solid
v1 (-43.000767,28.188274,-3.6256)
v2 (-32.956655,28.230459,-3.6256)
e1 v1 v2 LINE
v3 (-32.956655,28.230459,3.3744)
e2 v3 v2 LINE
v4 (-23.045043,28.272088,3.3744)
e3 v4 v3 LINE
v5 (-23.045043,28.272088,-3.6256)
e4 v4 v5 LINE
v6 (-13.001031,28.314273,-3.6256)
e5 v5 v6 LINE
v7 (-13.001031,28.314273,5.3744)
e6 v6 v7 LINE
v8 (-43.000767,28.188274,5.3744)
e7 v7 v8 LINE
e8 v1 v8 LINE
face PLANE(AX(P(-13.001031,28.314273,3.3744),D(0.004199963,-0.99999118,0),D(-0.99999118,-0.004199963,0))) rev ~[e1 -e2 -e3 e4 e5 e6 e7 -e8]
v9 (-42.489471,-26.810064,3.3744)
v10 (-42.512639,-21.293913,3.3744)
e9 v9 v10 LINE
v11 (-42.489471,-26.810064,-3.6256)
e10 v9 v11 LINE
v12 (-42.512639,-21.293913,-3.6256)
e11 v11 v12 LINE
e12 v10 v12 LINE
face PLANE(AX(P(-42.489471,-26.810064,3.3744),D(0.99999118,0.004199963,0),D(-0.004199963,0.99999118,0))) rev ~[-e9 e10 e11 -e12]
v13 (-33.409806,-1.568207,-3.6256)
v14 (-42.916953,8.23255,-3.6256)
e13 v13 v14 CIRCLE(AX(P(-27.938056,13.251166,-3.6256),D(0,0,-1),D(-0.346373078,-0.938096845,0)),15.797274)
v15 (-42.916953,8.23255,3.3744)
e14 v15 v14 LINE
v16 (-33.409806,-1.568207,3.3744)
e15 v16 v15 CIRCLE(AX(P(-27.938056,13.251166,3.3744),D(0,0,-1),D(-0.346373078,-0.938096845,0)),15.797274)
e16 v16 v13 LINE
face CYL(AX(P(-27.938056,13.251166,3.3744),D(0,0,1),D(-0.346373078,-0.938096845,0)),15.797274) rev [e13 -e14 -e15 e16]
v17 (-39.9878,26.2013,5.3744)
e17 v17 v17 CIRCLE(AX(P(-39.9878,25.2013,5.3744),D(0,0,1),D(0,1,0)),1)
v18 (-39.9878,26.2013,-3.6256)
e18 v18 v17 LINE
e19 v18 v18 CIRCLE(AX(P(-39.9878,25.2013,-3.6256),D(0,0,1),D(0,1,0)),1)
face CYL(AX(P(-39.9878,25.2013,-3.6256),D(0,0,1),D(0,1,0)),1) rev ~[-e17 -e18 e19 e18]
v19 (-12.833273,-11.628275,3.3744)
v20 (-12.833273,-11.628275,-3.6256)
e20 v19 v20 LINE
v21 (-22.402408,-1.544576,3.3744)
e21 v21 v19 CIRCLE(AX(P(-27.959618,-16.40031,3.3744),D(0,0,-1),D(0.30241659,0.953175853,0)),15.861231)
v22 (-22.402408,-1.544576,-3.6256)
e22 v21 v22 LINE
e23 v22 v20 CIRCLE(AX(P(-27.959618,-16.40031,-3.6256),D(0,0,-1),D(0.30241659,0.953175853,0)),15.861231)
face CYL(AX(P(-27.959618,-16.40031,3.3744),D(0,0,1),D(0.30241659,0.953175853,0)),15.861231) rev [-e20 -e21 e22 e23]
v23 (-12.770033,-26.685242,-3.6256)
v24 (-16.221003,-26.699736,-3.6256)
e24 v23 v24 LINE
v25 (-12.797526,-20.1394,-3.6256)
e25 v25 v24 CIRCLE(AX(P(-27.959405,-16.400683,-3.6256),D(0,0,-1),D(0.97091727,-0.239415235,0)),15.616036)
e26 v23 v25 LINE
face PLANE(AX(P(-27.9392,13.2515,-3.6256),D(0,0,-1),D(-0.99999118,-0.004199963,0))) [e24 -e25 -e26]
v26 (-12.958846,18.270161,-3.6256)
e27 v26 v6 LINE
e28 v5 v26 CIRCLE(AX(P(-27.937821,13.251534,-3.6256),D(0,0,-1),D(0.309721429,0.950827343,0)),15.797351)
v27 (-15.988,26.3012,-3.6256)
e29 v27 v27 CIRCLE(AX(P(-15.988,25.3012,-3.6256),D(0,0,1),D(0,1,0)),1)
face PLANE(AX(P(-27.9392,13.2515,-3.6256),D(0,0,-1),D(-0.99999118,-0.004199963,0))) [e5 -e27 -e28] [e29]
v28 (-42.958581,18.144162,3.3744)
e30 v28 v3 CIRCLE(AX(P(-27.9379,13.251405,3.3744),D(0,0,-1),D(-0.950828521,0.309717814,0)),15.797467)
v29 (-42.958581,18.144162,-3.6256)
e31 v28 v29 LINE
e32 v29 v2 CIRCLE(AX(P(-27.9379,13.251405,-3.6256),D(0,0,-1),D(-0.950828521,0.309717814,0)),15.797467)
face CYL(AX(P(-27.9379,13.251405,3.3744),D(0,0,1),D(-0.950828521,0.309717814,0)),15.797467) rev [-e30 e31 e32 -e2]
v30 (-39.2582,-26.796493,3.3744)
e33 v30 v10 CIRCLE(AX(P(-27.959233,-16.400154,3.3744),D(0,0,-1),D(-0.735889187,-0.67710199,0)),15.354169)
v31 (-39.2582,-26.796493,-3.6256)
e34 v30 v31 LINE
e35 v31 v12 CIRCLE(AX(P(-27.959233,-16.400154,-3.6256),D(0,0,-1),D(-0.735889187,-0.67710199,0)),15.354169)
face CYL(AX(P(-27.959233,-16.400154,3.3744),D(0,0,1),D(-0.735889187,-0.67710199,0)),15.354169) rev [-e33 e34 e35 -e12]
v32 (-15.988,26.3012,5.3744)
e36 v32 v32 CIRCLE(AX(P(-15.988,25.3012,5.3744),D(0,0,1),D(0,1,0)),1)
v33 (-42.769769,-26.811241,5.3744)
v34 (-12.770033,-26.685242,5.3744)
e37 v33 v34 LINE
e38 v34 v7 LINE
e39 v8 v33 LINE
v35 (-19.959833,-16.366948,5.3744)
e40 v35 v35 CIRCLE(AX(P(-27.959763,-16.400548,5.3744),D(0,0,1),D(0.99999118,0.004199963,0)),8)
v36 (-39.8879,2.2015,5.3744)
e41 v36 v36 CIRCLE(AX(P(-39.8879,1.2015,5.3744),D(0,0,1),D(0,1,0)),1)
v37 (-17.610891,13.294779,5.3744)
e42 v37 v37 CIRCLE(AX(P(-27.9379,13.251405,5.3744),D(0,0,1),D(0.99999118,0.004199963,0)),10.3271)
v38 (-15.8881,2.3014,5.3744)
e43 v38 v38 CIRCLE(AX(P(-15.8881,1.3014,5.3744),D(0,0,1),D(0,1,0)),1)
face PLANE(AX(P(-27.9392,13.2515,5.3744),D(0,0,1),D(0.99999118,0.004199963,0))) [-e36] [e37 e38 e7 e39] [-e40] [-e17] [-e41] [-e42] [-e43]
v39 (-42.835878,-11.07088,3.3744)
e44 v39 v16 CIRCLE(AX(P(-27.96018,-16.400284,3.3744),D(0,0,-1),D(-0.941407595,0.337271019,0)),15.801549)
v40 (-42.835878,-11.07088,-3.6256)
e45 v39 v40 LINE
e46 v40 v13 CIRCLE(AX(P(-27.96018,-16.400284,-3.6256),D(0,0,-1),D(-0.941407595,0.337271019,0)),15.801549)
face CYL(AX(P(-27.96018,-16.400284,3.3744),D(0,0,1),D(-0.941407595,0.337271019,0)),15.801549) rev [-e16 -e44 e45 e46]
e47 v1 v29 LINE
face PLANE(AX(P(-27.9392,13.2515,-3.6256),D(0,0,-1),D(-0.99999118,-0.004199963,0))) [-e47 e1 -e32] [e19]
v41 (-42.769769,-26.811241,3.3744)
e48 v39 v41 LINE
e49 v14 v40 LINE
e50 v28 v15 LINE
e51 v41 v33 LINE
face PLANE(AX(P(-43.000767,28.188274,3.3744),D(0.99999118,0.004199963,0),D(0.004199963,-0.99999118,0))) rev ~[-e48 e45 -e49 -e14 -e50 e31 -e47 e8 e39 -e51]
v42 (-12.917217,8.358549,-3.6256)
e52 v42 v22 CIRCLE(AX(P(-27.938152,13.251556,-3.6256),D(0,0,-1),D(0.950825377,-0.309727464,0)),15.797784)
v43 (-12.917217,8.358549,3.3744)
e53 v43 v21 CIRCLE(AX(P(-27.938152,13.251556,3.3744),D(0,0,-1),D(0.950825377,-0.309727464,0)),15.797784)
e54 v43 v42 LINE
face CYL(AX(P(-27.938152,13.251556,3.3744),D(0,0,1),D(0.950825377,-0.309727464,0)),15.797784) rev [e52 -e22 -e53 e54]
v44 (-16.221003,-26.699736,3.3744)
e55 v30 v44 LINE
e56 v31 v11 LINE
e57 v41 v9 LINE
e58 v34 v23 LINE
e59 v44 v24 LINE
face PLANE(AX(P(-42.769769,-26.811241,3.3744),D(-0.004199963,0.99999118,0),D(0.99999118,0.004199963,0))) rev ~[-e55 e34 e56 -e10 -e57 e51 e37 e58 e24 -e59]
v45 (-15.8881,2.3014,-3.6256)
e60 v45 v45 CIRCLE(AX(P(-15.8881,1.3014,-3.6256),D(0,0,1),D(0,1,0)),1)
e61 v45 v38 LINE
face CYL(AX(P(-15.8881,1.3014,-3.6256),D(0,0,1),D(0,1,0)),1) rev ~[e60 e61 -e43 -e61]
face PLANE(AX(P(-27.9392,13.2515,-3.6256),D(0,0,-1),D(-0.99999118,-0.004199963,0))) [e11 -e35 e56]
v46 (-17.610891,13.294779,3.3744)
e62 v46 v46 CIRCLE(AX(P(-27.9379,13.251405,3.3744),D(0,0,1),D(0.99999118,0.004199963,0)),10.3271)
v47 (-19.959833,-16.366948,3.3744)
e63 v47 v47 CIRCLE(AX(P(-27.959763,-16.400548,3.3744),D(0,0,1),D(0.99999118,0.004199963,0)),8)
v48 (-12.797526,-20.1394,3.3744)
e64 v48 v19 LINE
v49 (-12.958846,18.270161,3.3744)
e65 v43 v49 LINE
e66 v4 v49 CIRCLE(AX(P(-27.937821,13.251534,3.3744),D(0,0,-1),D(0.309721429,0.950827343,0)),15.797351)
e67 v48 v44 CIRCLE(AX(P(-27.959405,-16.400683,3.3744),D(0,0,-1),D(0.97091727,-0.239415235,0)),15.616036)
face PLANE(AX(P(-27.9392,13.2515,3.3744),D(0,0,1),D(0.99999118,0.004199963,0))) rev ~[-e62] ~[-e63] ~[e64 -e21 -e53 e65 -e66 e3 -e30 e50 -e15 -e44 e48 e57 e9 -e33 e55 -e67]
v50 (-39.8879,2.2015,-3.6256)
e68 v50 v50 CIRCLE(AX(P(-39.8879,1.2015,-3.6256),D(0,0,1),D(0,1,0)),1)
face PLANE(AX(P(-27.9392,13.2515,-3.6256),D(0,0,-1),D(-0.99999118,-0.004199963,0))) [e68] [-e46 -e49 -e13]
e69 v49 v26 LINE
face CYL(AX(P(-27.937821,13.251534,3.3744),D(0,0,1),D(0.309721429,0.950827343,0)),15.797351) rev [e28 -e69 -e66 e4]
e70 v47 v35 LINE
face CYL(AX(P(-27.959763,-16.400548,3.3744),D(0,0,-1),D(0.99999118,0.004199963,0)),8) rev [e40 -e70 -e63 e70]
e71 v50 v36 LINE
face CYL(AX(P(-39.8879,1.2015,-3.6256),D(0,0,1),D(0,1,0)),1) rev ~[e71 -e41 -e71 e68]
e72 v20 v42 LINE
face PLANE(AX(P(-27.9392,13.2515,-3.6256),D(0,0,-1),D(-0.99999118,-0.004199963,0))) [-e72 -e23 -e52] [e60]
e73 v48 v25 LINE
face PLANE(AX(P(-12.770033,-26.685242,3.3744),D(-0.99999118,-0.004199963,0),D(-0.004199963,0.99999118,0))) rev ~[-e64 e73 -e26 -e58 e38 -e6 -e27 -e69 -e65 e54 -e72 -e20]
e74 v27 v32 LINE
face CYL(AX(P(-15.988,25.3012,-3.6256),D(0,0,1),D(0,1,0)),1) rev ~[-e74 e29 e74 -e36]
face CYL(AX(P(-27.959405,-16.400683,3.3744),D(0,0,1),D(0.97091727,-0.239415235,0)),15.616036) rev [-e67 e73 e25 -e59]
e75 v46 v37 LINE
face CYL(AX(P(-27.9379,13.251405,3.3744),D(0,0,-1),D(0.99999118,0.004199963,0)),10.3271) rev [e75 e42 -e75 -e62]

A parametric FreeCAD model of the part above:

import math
import FreeCAD as App
import Part
import Sketcher
from FreeCAD import Vector
Q = App.Units.Quantity

doc = App.newDocument("Part")
params = doc.addObject("Spreadsheet::Sheet", "Params")
for row, (alias, value) in enumerate([
    ("sketch1_diameter", "16 mm"),
    ("sketch1_length", "55 mm"),
    ("sketch1_length2", "30 mm"),
    ("pad1_length", "2 mm"),
    ("pad2_length", "7 mm"),
    ("sketch3_diameter", "2 mm"),
    ("hole_diameter", "2 mm"),
    ("hole_depth", "24 mm"),
], start=1):
    params.set(f"A{row}", alias)
    params.set(f"B{row}", "=" + value)
    params.setAlias(f"B{row}", alias)

body = doc.addObject("PartDesign::Body", "Body")

# Sketch on XY plane
sketch1 = body.newObject("Sketcher::SketchObject", "Sketch")
sketch1.AttachmentSupport = (doc.getObject("XY_Plane"), [""])
sketch1.MapMode = "FlatFace"
sketch1.AttachmentOffset = App.Placement(Vector(0, 0, 3.3744), App.Rotation())
sketch1.addGeometry(Part.LineSegment(Vector(-13, -27, 0), Vector(-13, 28, 0)), False)
sketch1.addGeometry(Part.LineSegment(Vector(-13, 28, 0), Vector(-43, 28, 0)), False)
sketch1.addGeometry(Part.LineSegment(Vector(-43, 28, 0), Vector(-43, -27, 0)), False)
sketch1.addGeometry(Part.LineSegment(Vector(-43, -27, 0), Vector(-13, -27, 0)), False)
sketch1.addGeometry(Part.Circle(Vector(-28, -16, 0), Vector(0, 0, 1), 8), False)
sketch1.addGeometry(Part.Circle(Vector(-28, 13, 0), Vector(0, 0, 1), 10), False)
sketch1.addConstraint(Sketcher.Constraint("Coincident", 0, 2, 1, 1))
sketch1.addConstraint(Sketcher.Constraint("Coincident", 1, 2, 2, 1))
sketch1.addConstraint(Sketcher.Constraint("Coincident", 2, 2, 3, 1))
sketch1.addConstraint(Sketcher.Constraint("Coincident", 3, 2, 0, 1))
sketch1.addConstraint(Sketcher.Constraint("Perpendicular", 0, 1))
sketch1.addConstraint(Sketcher.Constraint("Perpendicular", 1, 2))
sketch1.addConstraint(Sketcher.Constraint("Perpendicular", 2, 3))
sketch1.addConstraint(Sketcher.Constraint("Diameter", 4, 16.0))
sketch1.addConstraint(Sketcher.Constraint("Distance", 0, 55.0))
sketch1.addConstraint(Sketcher.Constraint("Distance", 1, 30.0))
sketch1.addConstraint(Sketcher.Constraint("DistanceY", 4, 3, 5, 3, 29.652))
sketch1.addConstraint(Sketcher.Constraint("Diameter", 5, 20.6542))
sketch1.addConstraint(Sketcher.Constraint("Angle", 0, Q("90.2406 deg")))
sketch1.addConstraint(Sketcher.Constraint("DistanceX", 3, 2, -1, 1, 12.77))
sketch1.addConstraint(Sketcher.Constraint("DistanceX", 2, 2, 4, 3, 14.81))
sketch1.addConstraint(Sketcher.Constraint("DistanceX", 5, 3, -1, 1, 27.938))
sketch1.addConstraint(Sketcher.Constraint("DistanceY", 4, 3, -1, 1, 16.4005))
sketch1.addConstraint(Sketcher.Constraint("DistanceY", -1, 1, 0, 2, 28.3143))
sketch1.setExpression("Constraints[7]", "Params.sketch1_diameter")
sketch1.setExpression("Constraints[8]", "Params.sketch1_length")
sketch1.setExpression("Constraints[9]", "Params.sketch1_length2")
pad1 = body.newObject("PartDesign::Pad", "Pad")
pad1.Profile = sketch1
pad1.setExpression("Length", "Params.pad1_length")

# Sketch on XY plane
sketch2 = body.newObject("Sketcher::SketchObject", "Sketch001")
sketch2.AttachmentSupport = (doc.getObject("XY_Plane"), [""])
sketch2.MapMode = "FlatFace"
sketch2.AttachmentOffset = App.Placement(Vector(0, 0, 3.3744), App.Rotation())
sketch2.addGeometry(Part.LineSegment(Vector(-12.8, -20.1, 0), Vector(-12.8, -26.7, 0)), False)
sketch2.addGeometry(Part.LineSegment(Vector(-12.8, -26.7, 0), Vector(-16.2, -26.7, 0)), False)
sketch2.addGeometry(Part.ArcOfCircle(Part.Circle(Vector(-28, -16.4, 0), Vector(0, 0, 1), 15.6), math.radians(-41), math.radians(-14)), False)
sketch2.addGeometry(Part.LineSegment(Vector(-13, 28.3, 0), Vector(-13, 18.3, 0)), False)
sketch2.addGeometry(Part.ArcOfCircle(Part.Circle(Vector(-27.9, 13.3, 0), Vector(0, 0, 1), 15.8), math.radians(19), math.radians(72)), False)
sketch2.addGeometry(Part.LineSegment(Vector(-23, 28.3, 0), Vector(-13, 28.3, 0)), False)
sketch2.addGeometry(Part.LineSegment(Vector(-12.9, 8.4, 0), Vector(-12.8, -11.6, 0)), False)
sketch2.addGeometry(Part.ArcOfCircle(Part.Circle(Vector(-28, -16.4, 0), Vector(0, 0, 1), 15.9), math.radians(18), math.radians(69)), False)
sketch2.addGeometry(Part.ArcOfCircle(Part.Circle(Vector(-27.9, 13.3, 0), Vector(0, 0, 1), 15.8), math.radians(-69), math.radians(-18)), False)
sketch2.addGeometry(Part.ArcOfCircle(Part.Circle(Vector(-27.9, 13.3, 0), Vector(0, 0, 1), 15.8), math.radians(109), math.radians(162)), False)
sketch2.addGeometry(Part.LineSegment(Vector(-43, 18.1, 0), Vector(-43, 28.2, 0)), False)
sketch2.addGeometry(Part.LineSegment(Vector(-43, 28.2, 0), Vector(-33, 28.2, 0)), False)
sketch2.addGeometry(Part.ArcOfCircle(Part.Circle(Vector(-28, -16.4, 0), Vector(0, 0, 1), 15.8), math.radians(110), math.radians(160)), False)
sketch2.addGeometry(Part.LineSegment(Vector(-42.8, -11.1, 0), Vector(-42.9, 8.2, 0)), False)
sketch2.addGeometry(Part.ArcOfCircle(Part.Circle(Vector(-27.9, 13.3, 0), Vector(0, 0, 1), 15.8), math.radians(-161), math.radians(-110)), False)
sketch2.addGeometry(Part.ArcOfCircle(Part.Circle(Vector(-28, -16.4, 0), Vector(0, 0, 1), 15.4), math.radians(-161), math.radians(-137)), False)
sketch2.addGeometry(Part.LineSegment(Vector(-39.3, -26.8, 0), Vector(-42.5, -26.8, 0)), False)
sketch2.addGeometry(Part.LineSegment(Vector(-42.5, -26.8, 0), Vector(-42.5, -21.3, 0)), False)
sketch2.addConstraint(Sketcher.Constraint("Coincident", 0, 2, 1, 1))
sketch2.addConstraint(Sketcher.Constraint("Coincident", 1, 2, 2, 1))
sketch2.addConstraint(Sketcher.Constraint("Coincident", 2, 2, 0, 1))
sketch2.addConstraint(Sketcher.Constraint("Coincident", 3, 2, 4, 1))
sketch2.addConstraint(Sketcher.Constraint("Coincident", 4, 2, 5, 1))
sketch2.addConstraint(Sketcher.Constraint("Coincident", 5, 2, 3, 1))
sketch2.addConstraint(Sketcher.Constraint("Coincident", 6, 2, 7, 1))
sketch2.addConstraint(Sketcher.Constraint("Coincident", 7, 2, 8, 1))
sketch2.addConstraint(Sketcher.Constraint("Coincident", 8, 2, 6, 1))
sketch2.addConstraint(Sketcher.Constraint("Coincident", 9, 2, 10, 1))
sketch2.addConstraint(Sketcher.Constraint("Coincident", 10, 2, 11, 1))
sketch2.addConstraint(Sketcher.Constraint("Coincident", 11, 2, 9, 1))
sketch2.addConstraint(Sketcher.Constraint("Coincident", 12, 2, 13, 1))
sketch2.addConstraint(Sketcher.Constraint("Coincident", 13, 2, 14, 1))
sketch2.addConstraint(Sketcher.Constraint("Coincident", 14, 2, 12, 1))
sketch2.addConstraint(Sketcher.Constraint("Coincident", 15, 2, 16, 1))
sketch2.addConstraint(Sketcher.Constraint("Coincident", 16, 2, 17, 1))
sketch2.addConstraint(Sketcher.Constraint("Coincident", 17, 2, 15, 1))
sketch2.addConstraint(Sketcher.Constraint("Coincident", 7, 3, 2, 3))
sketch2.addConstraint(Sketcher.Constraint("Coincident", 8, 3, 4, 3))
sketch2.addConstraint(Sketcher.Constraint("Coincident", 9, 3, 4, 3))
sketch2.addConstraint(Sketcher.Constraint("Coincident", 12, 3, 2, 3))
sketch2.addConstraint(Sketcher.Constraint("Coincident", 14, 3, 4, 3))
sketch2.addConstraint(Sketcher.Constraint("Coincident", 15, 3, 2, 3))
sketch2.addConstraint(Sketcher.Constraint("Equal", 4, 8))
sketch2.addConstraint(Sketcher.Constraint("Equal", 8, 9))
sketch2.addConstraint(Sketcher.Constraint("Equal", 9, 14))
sketch2.addConstraint(Sketcher.Constraint("Perpendicular", 0, 1))
sketch2.addConstraint(Sketcher.Constraint("Perpendicular", 1, 3))
sketch2.addConstraint(Sketcher.Constraint("Perpendicular", 3, 5))
sketch2.addConstraint(Sketcher.Constraint("Perpendicular", 5, 6))
sketch2.addConstraint(Sketcher.Constraint("Parallel", 6, 10))
sketch2.addConstraint(Sketcher.Constraint("Perpendicular", 10, 11))
sketch2.addConstraint(Sketcher.Constraint("Perpendicular", 11, 13))
sketch2.addConstraint(Sketcher.Constraint("Perpendicular", 13, 16))
sketch2.addConstraint(Sketcher.Constraint("Perpendicular", 16, 17))
sketch2.addConstraint(Sketcher.Constraint("Equal", 3, 5))
sketch2.addConstraint(Sketcher.Constraint("Equal", 5, 10))
sketch2.addConstraint(Sketcher.Constraint("Equal", 10, 11))
sketch2.addConstraint(Sketcher.Constraint("Radius", 12, 15.802))
sketch2.addConstraint(Sketcher.Constraint("Angle", 0, Q("-89.7594 deg")))
sketch2.addConstraint(Sketcher.Constraint("Radius", 2, 15.6164))
sketch2.addConstraint(Sketcher.Constraint("Radius", 4, 15.7975))
sketch2.addConstraint(Sketcher.Constraint("Radius", 7, 15.8615))
sketch2.addConstraint(Sketcher.Constraint("Radius", 15, 15.3535))
sketch2.addConstraint(Sketcher.Constraint("DistanceX", 0, 2, -1, 1, 12.77))
sketch2.addConstraint(Sketcher.Constraint("DistanceY", 16, 2, -1, 1, 26.81))
sketch2.addConstraint(Sketcher.Constraint("Distance", 0, 6.546))
sketch2.addConstraint(Sketcher.Constraint("Distance", 1, 3.451))
sketch2.addConstraint(Sketcher.Constraint("Distance", 5, 10.044))
sketch2.addConstraint(Sketcher.Constraint("Distance", 6, 19.987))
sketch2.addConstraint(Sketcher.Constraint("DistanceX", 4, 3, -1, 1, 27.938))
sketch2.addConstraint(Sketcher.Constraint("DistanceY", -1, 1, 4, 2, 28.272))
sketch2.addConstraint(Sketcher.Constraint("DistanceY", 12, 2, -1, 1, 11.071))
sketch2.addConstraint(Sketcher.Constraint("DistanceX", 13, 2, -1, 1, 42.917))
sketch2.addConstraint(Sketcher.Constraint("DistanceY", 17, 2, -1, 1, 21.294))
pad2 = body.newObject("PartDesign::Pad", "Pad001")
pad2.Profile = sketch2
pad2.setExpression("Length", "Params.pad2_length")
pad2.Reversed = True

# Sketch on XY plane
sketch3 = body.newObject("Sketcher::SketchObject", "Sketch002")
sketch3.AttachmentSupport = (doc.getObject("XY_Plane"), [""])
sketch3.MapMode = "FlatFace"
sketch3.AttachmentOffset = App.Placement(Vector(0, 0, -3.6256), App.Rotation())
sketch3.addGeometry(Part.Circle(Vector(-40, 25.2, 0), Vector(0, 0, 1), 1), False)
sketch3.addGeometry(Part.Circle(Vector(-39.9, 1.2, 0), Vector(0, 0, 1), 1), False)
sketch3.addGeometry(Part.Circle(Vector(-15.9, 1.3, 0), Vector(0, 0, 1), 1), False)
sketch3.addGeometry(Part.Circle(Vector(-16, 25.3, 0), Vector(0, 0, 1), 1), False)
sketch3.addConstraint(Sketcher.Constraint("Equal", 0, 1))
sketch3.addConstraint(Sketcher.Constraint("Equal", 1, 2))
sketch3.addConstraint(Sketcher.Constraint("Equal", 2, 3))
sketch3.addConstraint(Sketcher.Constraint("Diameter", 0, 2.0))
sketch3.addConstraint(Sketcher.Constraint("DistanceX", 0, 3, 1, 3, 0.1))
sketch3.addConstraint(Sketcher.Constraint("DistanceY", 1, 3, 2, 3, 0.1))
sketch3.addConstraint(Sketcher.Constraint("DistanceY", 2, 3, 0, 3, 23.9))
sketch3.addConstraint(Sketcher.Constraint("DistanceY", 0, 3, 3, 3, 0.1))
sketch3.addConstraint(Sketcher.Constraint("DistanceX", 3, 3, 2, 3, 0.1))
sketch3.addConstraint(Sketcher.Constraint("DistanceX", 1, 3, 3, 3, 23.9))
sketch3.addConstraint(Sketcher.Constraint("DistanceX", 1, 3, -1, 1, 39.888))
sketch3.addConstraint(Sketcher.Constraint("DistanceY", -1, 1, 0, 3, 25.2013))
sketch3.setExpression("Constraints[3]", "Params.sketch3_diameter")
doc.recompute()
hole = body.newObject("PartDesign::Hole", "Hole")
hole.Profile = sketch3
hole.ThreadType = "None"
hole.setExpression("Diameter", "Params.hole_diameter")
hole.DepthType = "Dimension"
hole.setExpression("Depth", "Params.hole_depth")
hole.DrillPoint = "Angled"
hole.DrillPointAngle = 118
hole.Reversed = True

doc.recompute()
